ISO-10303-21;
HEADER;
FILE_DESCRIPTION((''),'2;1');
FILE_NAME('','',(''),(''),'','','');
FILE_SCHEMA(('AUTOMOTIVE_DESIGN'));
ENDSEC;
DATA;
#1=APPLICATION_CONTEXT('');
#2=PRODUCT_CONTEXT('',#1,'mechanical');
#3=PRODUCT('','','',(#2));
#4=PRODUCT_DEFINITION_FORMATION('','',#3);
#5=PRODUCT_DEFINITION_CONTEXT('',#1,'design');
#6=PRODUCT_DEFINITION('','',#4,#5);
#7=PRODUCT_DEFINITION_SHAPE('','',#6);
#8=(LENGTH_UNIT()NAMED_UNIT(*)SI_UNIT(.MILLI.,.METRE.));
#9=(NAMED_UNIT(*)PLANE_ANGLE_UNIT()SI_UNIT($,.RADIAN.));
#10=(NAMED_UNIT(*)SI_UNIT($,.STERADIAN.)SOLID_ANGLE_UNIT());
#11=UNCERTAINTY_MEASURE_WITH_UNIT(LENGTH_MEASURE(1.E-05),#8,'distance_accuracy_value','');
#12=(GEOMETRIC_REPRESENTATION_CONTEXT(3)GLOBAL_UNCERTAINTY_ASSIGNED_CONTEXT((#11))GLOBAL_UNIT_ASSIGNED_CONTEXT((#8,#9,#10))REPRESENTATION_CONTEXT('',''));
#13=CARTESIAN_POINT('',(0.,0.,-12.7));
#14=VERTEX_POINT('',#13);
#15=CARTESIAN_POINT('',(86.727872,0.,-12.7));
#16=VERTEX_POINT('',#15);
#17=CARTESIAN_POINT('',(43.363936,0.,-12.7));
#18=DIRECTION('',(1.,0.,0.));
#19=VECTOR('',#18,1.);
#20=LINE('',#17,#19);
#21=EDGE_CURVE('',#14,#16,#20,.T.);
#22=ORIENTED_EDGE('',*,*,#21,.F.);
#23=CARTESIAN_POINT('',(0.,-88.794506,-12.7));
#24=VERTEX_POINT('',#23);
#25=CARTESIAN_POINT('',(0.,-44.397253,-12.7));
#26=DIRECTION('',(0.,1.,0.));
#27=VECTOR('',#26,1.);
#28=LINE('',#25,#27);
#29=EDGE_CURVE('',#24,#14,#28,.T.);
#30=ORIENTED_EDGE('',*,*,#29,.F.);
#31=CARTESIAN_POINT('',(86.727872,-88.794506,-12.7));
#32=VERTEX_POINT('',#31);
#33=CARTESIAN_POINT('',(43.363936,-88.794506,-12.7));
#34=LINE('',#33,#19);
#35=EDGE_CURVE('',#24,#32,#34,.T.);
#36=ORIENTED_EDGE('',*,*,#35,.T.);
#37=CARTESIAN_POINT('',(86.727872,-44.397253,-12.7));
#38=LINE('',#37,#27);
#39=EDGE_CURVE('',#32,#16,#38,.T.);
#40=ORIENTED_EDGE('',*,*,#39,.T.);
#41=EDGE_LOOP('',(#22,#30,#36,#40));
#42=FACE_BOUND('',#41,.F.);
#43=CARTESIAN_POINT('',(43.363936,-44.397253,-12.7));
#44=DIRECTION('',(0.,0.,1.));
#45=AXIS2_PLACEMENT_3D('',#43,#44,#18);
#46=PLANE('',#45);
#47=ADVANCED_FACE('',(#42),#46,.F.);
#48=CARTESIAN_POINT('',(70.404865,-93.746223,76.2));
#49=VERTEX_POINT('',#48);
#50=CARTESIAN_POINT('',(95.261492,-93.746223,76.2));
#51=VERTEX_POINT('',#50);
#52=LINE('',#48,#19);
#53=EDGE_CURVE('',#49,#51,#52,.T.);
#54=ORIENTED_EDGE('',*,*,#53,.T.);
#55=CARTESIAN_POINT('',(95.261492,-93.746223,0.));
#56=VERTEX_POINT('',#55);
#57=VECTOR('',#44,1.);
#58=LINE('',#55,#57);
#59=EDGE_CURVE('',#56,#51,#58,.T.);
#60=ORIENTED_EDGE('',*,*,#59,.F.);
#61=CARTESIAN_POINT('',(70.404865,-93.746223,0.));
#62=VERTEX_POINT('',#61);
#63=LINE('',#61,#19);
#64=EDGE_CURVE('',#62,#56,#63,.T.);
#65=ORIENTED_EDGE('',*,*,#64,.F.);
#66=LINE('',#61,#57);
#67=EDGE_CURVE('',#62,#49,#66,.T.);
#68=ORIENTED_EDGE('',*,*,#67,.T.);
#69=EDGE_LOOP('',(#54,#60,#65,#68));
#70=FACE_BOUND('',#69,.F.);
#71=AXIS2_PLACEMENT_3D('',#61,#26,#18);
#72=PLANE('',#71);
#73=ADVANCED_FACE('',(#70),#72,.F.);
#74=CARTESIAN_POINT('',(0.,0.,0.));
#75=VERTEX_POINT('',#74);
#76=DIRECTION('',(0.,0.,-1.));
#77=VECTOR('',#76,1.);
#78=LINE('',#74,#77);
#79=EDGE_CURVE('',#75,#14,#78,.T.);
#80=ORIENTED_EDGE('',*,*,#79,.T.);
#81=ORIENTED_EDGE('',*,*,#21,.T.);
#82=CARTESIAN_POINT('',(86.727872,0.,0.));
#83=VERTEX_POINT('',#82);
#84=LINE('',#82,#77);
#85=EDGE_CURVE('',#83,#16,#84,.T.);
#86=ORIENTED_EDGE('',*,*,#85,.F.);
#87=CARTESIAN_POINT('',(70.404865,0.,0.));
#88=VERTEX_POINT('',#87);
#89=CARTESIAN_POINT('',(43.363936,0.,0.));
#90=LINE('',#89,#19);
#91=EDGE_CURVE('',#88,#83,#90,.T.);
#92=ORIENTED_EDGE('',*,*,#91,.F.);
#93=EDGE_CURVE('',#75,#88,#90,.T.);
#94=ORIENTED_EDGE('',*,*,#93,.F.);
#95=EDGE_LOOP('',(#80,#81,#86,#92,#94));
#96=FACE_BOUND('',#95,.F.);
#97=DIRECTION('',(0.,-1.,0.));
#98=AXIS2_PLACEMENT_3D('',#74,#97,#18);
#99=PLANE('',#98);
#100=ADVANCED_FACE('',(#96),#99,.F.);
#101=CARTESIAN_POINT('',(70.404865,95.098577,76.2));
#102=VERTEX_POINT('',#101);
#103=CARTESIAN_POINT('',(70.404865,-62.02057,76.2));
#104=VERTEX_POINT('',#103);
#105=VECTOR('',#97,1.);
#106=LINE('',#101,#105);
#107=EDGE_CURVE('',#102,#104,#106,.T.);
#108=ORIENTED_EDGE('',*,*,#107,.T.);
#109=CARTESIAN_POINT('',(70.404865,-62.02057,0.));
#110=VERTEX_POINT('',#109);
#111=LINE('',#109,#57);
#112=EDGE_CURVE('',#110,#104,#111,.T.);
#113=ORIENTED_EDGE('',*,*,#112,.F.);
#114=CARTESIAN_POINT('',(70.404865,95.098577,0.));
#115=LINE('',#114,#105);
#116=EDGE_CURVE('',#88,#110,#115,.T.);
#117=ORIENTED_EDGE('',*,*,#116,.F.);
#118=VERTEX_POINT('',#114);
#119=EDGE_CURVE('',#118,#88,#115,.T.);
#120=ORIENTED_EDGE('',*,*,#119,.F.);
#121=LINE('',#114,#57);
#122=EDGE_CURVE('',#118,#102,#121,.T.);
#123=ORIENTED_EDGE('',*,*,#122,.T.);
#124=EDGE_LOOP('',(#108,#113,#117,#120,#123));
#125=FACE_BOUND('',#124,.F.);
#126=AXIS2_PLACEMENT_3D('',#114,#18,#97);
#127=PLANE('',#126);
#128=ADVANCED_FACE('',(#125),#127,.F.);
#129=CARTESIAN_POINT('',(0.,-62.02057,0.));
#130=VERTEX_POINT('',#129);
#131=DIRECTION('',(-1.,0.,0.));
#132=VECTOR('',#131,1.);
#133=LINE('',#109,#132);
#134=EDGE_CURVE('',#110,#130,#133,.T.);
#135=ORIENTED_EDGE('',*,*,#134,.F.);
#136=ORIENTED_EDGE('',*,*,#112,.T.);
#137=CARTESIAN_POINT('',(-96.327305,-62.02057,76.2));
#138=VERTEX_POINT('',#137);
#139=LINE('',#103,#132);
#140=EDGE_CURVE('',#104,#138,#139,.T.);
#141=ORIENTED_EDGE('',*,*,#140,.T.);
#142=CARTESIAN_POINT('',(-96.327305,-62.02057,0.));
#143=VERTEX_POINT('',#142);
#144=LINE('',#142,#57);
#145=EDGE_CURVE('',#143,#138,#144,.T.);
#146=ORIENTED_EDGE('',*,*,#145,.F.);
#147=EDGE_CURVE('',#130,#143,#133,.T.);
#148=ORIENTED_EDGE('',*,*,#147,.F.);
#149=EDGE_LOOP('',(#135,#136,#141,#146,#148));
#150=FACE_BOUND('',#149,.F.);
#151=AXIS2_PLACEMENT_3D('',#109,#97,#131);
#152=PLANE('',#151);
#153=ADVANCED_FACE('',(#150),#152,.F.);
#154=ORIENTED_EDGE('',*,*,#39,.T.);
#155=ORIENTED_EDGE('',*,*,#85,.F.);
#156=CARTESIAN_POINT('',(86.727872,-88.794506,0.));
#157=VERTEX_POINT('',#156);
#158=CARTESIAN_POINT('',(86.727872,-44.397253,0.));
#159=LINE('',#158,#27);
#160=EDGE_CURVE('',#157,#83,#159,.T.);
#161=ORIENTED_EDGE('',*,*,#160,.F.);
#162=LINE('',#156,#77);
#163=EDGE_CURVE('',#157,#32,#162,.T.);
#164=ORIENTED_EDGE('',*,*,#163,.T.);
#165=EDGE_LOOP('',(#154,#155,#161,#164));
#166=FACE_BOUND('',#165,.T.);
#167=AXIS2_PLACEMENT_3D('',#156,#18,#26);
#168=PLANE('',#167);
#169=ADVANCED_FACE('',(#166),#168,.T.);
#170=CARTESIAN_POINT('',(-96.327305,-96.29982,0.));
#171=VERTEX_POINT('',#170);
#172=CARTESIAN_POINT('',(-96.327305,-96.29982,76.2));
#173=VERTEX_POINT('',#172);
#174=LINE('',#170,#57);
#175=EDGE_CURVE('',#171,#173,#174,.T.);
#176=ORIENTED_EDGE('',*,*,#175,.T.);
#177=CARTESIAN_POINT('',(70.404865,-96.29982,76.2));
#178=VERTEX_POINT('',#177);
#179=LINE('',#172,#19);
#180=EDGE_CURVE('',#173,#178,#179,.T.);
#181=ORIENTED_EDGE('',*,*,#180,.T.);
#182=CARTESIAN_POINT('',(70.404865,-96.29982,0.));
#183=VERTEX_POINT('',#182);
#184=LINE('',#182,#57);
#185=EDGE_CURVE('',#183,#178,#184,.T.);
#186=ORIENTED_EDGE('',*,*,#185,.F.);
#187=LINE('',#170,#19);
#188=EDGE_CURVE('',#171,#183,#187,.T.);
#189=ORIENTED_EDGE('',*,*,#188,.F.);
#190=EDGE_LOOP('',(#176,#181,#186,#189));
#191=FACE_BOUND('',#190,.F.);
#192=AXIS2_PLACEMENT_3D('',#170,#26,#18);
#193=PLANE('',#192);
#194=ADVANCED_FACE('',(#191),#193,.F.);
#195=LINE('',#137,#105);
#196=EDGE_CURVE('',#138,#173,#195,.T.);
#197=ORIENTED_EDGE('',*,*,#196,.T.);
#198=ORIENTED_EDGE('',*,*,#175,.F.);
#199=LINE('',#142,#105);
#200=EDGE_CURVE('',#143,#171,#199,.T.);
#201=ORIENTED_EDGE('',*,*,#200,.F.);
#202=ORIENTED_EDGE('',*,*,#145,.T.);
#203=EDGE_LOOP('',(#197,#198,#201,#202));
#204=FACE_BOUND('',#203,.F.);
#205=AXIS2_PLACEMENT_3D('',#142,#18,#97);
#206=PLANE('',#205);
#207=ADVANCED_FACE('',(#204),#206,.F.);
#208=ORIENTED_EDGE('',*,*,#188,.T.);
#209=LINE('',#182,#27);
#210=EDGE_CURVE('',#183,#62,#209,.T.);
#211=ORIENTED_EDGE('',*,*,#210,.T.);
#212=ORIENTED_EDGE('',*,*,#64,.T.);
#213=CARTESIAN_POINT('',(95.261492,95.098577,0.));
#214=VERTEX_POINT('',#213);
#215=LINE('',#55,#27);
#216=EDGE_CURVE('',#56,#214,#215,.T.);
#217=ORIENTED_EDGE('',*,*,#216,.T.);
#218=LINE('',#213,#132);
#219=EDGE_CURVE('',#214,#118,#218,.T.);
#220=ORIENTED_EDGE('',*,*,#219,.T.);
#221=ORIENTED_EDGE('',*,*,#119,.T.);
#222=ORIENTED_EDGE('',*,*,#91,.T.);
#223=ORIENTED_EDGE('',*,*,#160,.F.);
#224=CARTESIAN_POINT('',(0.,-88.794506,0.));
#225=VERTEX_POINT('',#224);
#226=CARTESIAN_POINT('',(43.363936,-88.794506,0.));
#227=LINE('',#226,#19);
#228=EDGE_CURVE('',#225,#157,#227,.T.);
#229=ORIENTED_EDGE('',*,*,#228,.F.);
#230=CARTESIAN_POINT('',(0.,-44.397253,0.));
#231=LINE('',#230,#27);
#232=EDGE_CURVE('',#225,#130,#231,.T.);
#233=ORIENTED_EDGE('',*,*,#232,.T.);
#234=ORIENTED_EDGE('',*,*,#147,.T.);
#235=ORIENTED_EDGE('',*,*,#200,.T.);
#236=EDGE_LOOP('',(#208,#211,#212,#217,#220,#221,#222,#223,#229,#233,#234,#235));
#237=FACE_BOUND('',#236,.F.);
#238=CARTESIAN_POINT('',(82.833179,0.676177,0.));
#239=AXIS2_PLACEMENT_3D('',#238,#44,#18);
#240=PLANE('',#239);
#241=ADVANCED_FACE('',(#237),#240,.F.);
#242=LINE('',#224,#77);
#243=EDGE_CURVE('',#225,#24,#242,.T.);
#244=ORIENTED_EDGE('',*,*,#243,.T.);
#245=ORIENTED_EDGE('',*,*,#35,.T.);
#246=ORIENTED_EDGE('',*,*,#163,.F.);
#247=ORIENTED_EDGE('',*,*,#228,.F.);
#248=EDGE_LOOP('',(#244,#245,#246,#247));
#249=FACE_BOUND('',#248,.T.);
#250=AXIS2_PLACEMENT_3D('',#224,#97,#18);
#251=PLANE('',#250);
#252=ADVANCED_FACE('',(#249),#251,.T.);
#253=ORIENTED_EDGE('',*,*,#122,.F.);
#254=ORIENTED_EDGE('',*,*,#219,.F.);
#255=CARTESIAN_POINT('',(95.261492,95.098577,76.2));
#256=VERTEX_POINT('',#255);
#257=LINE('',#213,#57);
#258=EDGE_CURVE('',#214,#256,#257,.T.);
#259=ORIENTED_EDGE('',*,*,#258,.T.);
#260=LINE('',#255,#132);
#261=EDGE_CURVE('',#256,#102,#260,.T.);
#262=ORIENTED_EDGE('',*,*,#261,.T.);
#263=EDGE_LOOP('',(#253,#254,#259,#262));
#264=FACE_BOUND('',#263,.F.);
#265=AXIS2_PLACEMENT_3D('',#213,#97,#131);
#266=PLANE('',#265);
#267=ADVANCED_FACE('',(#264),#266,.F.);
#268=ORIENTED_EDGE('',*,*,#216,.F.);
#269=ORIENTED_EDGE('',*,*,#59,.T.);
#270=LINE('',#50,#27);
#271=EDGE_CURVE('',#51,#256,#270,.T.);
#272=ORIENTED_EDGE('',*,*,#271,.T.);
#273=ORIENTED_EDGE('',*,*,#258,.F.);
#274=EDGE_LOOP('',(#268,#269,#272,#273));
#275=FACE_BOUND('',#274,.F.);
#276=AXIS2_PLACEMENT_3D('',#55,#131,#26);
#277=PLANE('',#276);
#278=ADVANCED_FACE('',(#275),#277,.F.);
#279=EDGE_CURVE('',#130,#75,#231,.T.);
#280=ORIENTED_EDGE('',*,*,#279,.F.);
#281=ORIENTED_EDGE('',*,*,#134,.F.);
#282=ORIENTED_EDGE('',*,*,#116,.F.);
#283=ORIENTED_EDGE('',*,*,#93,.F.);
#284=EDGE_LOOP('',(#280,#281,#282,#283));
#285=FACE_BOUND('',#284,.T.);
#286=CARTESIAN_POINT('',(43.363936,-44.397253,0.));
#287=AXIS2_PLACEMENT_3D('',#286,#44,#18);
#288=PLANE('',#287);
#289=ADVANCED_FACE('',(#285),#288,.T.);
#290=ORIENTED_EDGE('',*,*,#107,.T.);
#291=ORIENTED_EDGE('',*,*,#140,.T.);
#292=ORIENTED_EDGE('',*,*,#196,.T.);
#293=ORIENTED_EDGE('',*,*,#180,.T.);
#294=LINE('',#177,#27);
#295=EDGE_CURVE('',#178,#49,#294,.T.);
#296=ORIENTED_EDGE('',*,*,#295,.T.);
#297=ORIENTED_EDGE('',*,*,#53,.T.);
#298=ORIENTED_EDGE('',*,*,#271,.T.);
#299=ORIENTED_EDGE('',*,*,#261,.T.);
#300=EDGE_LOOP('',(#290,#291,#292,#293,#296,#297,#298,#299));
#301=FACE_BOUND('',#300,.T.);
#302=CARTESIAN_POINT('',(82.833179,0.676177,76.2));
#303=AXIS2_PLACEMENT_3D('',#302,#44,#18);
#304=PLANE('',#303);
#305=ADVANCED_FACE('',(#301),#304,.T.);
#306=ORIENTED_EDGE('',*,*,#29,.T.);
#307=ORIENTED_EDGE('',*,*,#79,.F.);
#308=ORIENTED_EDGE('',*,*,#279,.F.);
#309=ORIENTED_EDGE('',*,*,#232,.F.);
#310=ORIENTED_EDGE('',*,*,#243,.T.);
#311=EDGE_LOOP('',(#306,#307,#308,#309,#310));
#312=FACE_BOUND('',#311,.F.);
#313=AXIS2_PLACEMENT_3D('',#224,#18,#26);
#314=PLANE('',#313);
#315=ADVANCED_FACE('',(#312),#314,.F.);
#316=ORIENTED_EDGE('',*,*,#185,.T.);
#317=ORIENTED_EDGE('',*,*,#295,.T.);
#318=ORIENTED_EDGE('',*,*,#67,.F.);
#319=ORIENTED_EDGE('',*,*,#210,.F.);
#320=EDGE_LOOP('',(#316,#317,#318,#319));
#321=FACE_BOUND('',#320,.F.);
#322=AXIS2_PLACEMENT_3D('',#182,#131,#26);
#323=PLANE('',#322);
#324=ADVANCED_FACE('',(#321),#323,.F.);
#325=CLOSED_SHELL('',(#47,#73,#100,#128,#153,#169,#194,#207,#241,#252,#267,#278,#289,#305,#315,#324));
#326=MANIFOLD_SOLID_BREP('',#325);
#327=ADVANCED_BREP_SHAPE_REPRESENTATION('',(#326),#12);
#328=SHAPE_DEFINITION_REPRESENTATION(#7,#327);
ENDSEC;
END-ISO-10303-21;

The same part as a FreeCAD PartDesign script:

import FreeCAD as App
import Part
import Sketcher
from FreeCAD import Vector
Q = App.Units.Quantity

doc = App.newDocument("Part")
body = doc.addObject("PartDesign::Body", "Body")

sketch1 = body.newObject("Sketcher::SketchObject", "Sketch")
sketch1.AttachmentSupport = (doc.getObject("XY_Plane"), [""])
sketch1.MapMode = "FlatFace"
sketch1.addGeometry(Part.LineSegment(Vector(95.3, -93.7, 0), Vector(95.3, 95.1, 0)), False)
sketch1.addGeometry(Part.LineSegment(Vector(95.3, 95.1, 0), Vector(70.4, 95.1, 0)), False)
sketch1.addGeometry(Part.LineSegment(Vector(70.4, 95.1, 0), Vector(70.4, -62, 0)), False)
sketch1.addGeometry(Part.LineSegment(Vector(70.4, -62, 0), Vector(-96.3, -62, 0)), False)
sketch1.addGeometry(Part.LineSegment(Vector(-96.3, -62, 0), Vector(-96.3, -96.3, 0)), False)
sketch1.addGeometry(Part.LineSegment(Vector(-96.3, -96.3, 0), Vector(70.4, -96.3, 0)), False)
sketch1.addGeometry(Part.LineSegment(Vector(70.4, -96.3, 0), Vector(70.4, -93.7, 0)), False)
sketch1.addGeometry(Part.LineSegment(Vector(70.4, -93.7, 0), Vector(95.3, -93.7, 0)), False)
sketch1.addConstraint(Sketcher.Constraint("Coincident", 0, 2, 1, 1))
sketch1.addConstraint(Sketcher.Constraint("Coincident", 1, 2, 2, 1))
sketch1.addConstraint(Sketcher.Constraint("Coincident", 2, 2, 3, 1))
sketch1.addConstraint(Sketcher.Constraint("Coincident", 3, 2, 4, 1))
sketch1.addConstraint(Sketcher.Constraint("Coincident", 4, 2, 5, 1))
sketch1.addConstraint(Sketcher.Constraint("Coincident", 5, 2, 6, 1))
sketch1.addConstraint(Sketcher.Constraint("Coincident", 6, 2, 7, 1))
sketch1.addConstraint(Sketcher.Constraint("Coincident", 7, 2, 0, 1))
sketch1.addConstraint(Sketcher.Constraint("Vertical", 0))
sketch1.addConstraint(Sketcher.Constraint("Horizontal", 1))
sketch1.addConstraint(Sketcher.Constraint("Vertical", 2))
sketch1.addConstraint(Sketcher.Constraint("Horizontal", 3))
sketch1.addConstraint(Sketcher.Constraint("Vertical", 4))
sketch1.addConstraint(Sketcher.Constraint("Horizontal", 5))
sketch1.addConstraint(Sketcher.Constraint("Vertical", 6))
sketch1.addConstraint(Sketcher.Constraint("Horizontal", 7))
sketch1.addConstraint(Sketcher.Constraint("Vertical", 2, 2, 5, 2))
sketch1.addConstraint(Sketcher.Constraint("DistanceY", 0, 1, 0, 2, Q("188.8448 mm")))
sketch1.addConstraint(Sketcher.Constraint("DistanceX", 3, 2, 3, 1, Q("166.73217 mm")))
sketch1.addConstraint(Sketcher.Constraint("DistanceY", 4, 2, 4, 1, Q("34.27925 mm")))
sketch1.addConstraint(Sketcher.Constraint("DistanceX", 1, 2, 1, 1, Q("24.856627 mm")))
sketch1.addConstraint(Sketcher.Constraint("DistanceY", 2, 2, 2, 1, Q("157.119147 mm")))
sketch1.addConstraint(Sketcher.Constraint("DistanceY", 2, 2, -1, 1, Q("62.02057 mm")))
sketch1.addConstraint(Sketcher.Constraint("DistanceX", -1, 1, 0, 2, Q("95.261492 mm")))
pad1 = body.newObject("PartDesign::Pad", "Pad")
pad1.Profile = sketch1
pad1.Length = Q("3 in")

sketch2 = body.newObject("Sketcher::SketchObject", "Sketch001")
sketch2.AttachmentSupport = (doc.getObject("XY_Plane"), [""])
sketch2.MapMode = "FlatFace"
sketch2.addGeometry(Part.LineSegment(Vector(0, 0, 0), Vector(0, -89, 0)), False)
sketch2.addGeometry(Part.LineSegment(Vector(0, -89, 0), Vector(87, -89, 0)), False)
sketch2.addGeometry(Part.LineSegment(Vector(87, -89, 0), Vector(87, 0, 0)), False)
sketch2.addGeometry(Part.LineSegment(Vector(87, 0, 0), Vector(0, 0, 0)), False)
sketch2.addConstraint(Sketcher.Constraint("Coincident", 0, 2, 1, 1))
sketch2.addConstraint(Sketcher.Constraint("Coincident", 1, 2, 2, 1))
sketch2.addConstraint(Sketcher.Constraint("Coincident", 2, 2, 3, 1))
sketch2.addConstraint(Sketcher.Constraint("Coincident", 3, 2, 0, 1))
sketch2.addConstraint(Sketcher.Constraint("Vertical", 0))
sketch2.addConstraint(Sketcher.Constraint("Horizontal", 1))
sketch2.addConstraint(Sketcher.Constraint("Vertical", 2))
sketch2.addConstraint(Sketcher.Constraint("Horizontal", 3))
sketch2.addConstraint(Sketcher.Constraint("Coincident", 3, 2, -1, 1))
sketch2.addConstraint(Sketcher.Constraint("DistanceX", 1, 1, 1, 2, Q("86.727872 mm")))
sketch2.addConstraint(Sketcher.Constraint("DistanceY", 0, 2, 0, 1, Q("88.794507 mm")))
pad2 = body.newObject("PartDesign::Pad", "Pad001")
pad2.Profile = sketch2
pad2.Length = Q("0.5 in")
pad2.Reversed = True

doc.recompute()
